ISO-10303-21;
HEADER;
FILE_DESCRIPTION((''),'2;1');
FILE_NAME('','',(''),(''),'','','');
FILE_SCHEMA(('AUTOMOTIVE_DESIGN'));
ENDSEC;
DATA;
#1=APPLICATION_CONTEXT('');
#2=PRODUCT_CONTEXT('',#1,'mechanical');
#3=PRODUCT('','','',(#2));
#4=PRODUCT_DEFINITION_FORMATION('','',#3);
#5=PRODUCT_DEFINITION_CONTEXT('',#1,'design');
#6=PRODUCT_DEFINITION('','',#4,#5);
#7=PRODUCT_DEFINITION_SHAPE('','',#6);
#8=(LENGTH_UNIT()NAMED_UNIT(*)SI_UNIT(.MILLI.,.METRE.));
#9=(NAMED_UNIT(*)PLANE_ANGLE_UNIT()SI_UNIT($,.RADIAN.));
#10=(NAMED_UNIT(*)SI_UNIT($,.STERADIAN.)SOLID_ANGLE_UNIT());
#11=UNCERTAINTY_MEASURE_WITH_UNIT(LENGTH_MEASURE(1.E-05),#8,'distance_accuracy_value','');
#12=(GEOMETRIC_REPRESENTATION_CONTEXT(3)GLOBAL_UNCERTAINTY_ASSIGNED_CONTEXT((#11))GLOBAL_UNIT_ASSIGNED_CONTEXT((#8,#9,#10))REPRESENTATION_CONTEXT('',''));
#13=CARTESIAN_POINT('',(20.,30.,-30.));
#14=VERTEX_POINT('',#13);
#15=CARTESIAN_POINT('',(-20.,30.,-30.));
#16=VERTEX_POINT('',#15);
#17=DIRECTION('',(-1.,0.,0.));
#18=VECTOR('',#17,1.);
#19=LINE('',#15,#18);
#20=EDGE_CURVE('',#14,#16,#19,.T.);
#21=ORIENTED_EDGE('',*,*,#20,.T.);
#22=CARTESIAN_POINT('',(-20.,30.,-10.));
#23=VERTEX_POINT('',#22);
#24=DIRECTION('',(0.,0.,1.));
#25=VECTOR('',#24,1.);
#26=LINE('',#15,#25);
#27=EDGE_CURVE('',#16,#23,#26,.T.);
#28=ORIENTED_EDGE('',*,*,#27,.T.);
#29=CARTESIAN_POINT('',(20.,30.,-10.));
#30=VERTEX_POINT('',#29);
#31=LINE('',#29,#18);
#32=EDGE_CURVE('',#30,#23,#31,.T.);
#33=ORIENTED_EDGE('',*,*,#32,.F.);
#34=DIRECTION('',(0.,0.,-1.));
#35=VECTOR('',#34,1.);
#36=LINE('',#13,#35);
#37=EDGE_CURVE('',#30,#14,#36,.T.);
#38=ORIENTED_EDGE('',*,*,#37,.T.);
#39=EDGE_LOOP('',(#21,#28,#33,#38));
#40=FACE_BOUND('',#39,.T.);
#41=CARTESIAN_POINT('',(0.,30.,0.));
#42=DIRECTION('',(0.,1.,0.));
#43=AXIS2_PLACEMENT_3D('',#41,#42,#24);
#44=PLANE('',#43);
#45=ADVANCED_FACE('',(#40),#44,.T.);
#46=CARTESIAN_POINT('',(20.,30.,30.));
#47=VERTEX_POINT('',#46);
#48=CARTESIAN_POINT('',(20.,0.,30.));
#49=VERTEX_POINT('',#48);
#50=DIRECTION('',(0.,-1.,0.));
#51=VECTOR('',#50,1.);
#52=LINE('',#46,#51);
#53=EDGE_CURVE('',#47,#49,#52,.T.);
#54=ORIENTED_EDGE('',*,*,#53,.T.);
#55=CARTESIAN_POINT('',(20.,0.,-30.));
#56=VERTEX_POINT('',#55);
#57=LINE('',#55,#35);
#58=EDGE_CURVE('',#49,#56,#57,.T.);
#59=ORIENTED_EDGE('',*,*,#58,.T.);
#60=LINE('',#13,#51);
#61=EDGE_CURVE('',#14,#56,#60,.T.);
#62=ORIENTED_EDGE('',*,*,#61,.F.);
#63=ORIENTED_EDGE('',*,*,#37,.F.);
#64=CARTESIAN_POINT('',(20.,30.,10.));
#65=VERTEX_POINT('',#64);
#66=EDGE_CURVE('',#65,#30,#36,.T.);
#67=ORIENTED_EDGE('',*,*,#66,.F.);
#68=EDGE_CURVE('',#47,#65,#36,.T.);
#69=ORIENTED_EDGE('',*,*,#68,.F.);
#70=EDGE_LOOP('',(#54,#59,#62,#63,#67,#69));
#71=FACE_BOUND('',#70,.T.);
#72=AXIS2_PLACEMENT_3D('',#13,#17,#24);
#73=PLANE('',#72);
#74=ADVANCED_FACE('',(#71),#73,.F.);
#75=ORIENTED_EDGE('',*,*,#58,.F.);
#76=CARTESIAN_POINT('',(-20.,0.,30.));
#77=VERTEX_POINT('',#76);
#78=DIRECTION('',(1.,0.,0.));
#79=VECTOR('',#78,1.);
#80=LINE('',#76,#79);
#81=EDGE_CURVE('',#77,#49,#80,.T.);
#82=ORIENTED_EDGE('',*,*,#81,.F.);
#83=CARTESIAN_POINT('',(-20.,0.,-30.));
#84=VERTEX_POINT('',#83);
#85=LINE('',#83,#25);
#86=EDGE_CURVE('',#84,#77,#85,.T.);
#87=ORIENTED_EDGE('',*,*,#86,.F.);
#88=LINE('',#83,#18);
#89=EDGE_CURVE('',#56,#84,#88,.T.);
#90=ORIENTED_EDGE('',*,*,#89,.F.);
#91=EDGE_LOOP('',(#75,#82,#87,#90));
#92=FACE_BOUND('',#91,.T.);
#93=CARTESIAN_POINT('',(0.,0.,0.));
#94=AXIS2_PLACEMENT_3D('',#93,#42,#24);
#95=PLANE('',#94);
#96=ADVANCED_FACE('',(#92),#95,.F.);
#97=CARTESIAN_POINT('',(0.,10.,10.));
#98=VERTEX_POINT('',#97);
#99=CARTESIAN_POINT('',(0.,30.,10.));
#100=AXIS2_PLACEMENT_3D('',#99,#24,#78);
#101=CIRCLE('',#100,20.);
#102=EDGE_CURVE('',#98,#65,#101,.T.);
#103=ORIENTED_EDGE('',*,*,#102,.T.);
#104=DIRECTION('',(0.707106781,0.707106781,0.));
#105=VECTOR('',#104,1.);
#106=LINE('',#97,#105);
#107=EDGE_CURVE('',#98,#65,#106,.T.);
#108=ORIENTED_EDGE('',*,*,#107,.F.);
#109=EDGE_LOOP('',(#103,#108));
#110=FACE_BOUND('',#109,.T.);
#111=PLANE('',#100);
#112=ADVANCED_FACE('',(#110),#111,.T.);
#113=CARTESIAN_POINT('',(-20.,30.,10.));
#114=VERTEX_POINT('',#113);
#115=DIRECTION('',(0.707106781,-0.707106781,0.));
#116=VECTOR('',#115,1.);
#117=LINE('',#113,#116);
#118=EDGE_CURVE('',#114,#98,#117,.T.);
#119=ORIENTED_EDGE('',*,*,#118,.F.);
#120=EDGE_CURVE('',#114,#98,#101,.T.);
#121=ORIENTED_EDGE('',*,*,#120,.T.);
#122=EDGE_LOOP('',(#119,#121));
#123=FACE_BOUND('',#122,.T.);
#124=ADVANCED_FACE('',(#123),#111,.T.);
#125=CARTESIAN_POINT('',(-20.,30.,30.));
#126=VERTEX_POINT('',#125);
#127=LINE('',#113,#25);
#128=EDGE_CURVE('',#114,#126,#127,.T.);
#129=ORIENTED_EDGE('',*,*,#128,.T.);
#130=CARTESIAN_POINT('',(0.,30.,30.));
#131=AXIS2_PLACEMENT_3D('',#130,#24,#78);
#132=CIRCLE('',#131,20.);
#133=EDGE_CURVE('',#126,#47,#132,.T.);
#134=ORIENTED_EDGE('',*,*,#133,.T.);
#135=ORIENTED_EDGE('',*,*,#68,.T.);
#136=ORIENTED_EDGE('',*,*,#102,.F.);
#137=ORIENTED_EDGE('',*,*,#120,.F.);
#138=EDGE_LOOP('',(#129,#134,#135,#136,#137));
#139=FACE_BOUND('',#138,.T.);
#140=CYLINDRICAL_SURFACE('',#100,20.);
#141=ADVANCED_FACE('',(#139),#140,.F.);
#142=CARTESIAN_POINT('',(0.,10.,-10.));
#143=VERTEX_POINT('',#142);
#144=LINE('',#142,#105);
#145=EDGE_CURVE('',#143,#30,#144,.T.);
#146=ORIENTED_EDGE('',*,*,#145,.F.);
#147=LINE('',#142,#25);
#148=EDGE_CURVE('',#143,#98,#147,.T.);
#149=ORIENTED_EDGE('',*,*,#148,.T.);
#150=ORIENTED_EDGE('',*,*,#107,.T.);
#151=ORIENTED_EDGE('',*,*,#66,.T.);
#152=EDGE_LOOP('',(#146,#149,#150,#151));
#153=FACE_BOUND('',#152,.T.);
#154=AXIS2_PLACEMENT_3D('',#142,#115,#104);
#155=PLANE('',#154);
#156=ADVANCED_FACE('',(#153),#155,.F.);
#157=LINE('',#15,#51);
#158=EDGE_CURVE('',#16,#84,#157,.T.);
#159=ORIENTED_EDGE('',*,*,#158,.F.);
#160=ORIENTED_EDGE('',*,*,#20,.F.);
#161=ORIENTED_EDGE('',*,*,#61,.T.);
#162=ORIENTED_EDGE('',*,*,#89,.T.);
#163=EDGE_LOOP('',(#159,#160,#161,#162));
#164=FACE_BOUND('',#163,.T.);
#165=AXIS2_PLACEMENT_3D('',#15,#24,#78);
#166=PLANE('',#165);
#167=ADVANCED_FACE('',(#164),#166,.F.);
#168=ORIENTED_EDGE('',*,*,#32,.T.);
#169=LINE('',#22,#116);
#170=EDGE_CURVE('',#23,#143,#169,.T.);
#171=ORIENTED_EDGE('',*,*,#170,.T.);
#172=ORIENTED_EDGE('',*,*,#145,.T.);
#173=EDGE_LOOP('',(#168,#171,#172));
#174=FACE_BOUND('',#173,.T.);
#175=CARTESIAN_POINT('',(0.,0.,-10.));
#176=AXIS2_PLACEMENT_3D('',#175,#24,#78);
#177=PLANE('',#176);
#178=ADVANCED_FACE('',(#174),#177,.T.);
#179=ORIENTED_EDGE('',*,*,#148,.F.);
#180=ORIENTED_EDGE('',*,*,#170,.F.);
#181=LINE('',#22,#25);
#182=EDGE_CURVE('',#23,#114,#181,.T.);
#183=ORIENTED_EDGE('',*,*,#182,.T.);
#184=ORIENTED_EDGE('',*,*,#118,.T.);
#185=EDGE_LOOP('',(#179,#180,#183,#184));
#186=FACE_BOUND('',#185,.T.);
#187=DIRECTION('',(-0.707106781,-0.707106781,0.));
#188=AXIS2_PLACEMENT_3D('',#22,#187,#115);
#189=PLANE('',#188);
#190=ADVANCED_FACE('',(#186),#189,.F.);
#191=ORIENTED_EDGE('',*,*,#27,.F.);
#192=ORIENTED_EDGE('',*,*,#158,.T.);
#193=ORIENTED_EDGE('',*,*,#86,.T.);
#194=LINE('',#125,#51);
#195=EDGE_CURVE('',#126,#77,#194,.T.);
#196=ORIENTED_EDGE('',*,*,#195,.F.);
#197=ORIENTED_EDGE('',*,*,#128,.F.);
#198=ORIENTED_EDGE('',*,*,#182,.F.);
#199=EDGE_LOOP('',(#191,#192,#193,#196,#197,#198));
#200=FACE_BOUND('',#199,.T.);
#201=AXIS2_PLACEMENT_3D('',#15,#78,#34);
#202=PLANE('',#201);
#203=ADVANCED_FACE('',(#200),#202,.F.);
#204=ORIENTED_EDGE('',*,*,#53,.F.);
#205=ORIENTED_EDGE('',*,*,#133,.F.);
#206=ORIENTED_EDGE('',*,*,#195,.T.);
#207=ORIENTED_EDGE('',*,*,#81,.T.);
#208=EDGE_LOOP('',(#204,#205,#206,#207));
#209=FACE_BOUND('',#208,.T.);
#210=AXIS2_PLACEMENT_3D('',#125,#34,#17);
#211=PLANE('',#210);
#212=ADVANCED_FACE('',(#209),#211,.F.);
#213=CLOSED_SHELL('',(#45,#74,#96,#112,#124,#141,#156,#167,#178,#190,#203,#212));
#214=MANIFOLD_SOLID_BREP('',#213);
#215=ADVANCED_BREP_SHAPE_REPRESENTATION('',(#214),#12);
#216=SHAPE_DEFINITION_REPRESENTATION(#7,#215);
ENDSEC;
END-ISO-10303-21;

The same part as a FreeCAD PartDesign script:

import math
import FreeCAD as App
import Part
import Sketcher

V = App.Vector
Q = App.Units.Quantity


def add_polygon(sketch, points):
    """Adds a closed chain of lines whose ends are joined by coincident constraints."""
    first, n = sketch.GeometryCount, len(points)
    for a, b in zip(points, points[1:] + points[:1]):
        sketch.addGeometry(Part.LineSegment(App.Vector(*a, 0), App.Vector(*b, 0)), False)
    for i in range(n):
        sketch.addConstraint(Sketcher.Constraint("Coincident", first + i, 2, first + (i + 1) % n, 1))

doc = App.newDocument("Part")
body = doc.addObject("PartDesign::Body", "Body")

sketch1 = body.newObject("Sketcher::SketchObject", "Sketch")
sketch1.AttachmentSupport = (doc.getObject("XZ_Plane"), [""])
sketch1.MapMode = "FlatFace"
add_polygon(sketch1, [(-20, -30), (-20, 30), (20, 30), (20, -30)])
sketch1.addConstraint(Sketcher.Constraint("Vertical", 0))
sketch1.addConstraint(Sketcher.Constraint("Horizontal", 1))
sketch1.addConstraint(Sketcher.Constraint("Vertical", 2))
sketch1.addConstraint(Sketcher.Constraint("Horizontal", 3))
sketch1.addConstraint(Sketcher.Constraint("Symmetric", 0, 2, 2, 2, -1, 1))
sketch1.addConstraint(Sketcher.Constraint("DistanceX", 1, 1, 1, 2, Q("40 mm")))
sketch1.addConstraint(Sketcher.Constraint("DistanceY", 0, 1, 0, 2, Q("60 mm")))
pad1 = body.newObject("PartDesign::Pad", "Pad")
pad1.Profile = sketch1
pad1.Length = 30
pad1.Reversed = True

sketch2 = body.newObject("Sketcher::SketchObject", "Sketch001")
sketch2.AttachmentSupport = (doc.getObject("XY_Plane"), [""])
sketch2.MapMode = "FlatFace"
sketch2.AttachmentOffset = App.Placement(V(0, 0, 30), App.Rotation())
sketch2.addGeometry(Part.LineSegment(V(20, 30, 0), V(-20, 30, 0)), False)
sketch2.addGeometry(Part.ArcOfCircle(Part.Circle(V(0, 30, 0), V(0, 0, 1), 20), math.radians(180), math.radians(360)), False)
sketch2.addConstraint(Sketcher.Constraint("Coincident", 0, 1, 1, 2))
sketch2.addConstraint(Sketcher.Constraint("Coincident", 1, 1, 0, 2))
sketch2.addConstraint(Sketcher.Constraint("Horizontal", 0))
sketch2.addConstraint(Sketcher.Constraint("PointOnObject", 1, 3, -2))
sketch2.addConstraint(Sketcher.Constraint("Horizontal", 1, 3, 0, 1))
sketch2.addConstraint(Sketcher.Constraint("Radius", 1, Q("20 mm")))
sketch2.addConstraint(Sketcher.Constraint("DistanceY", -1, 1, 1, 3, Q("30 mm")))
pocket1 = body.newObject("PartDesign::Pocket", "Pocket")
pocket1.Profile = sketch2
pocket1.Length = 20

sketch3 = body.newObject("Sketcher::SketchObject", "Sketch002")
sketch3.AttachmentSupport = (doc.getObject("XY_Plane"), [""])
sketch3.MapMode = "FlatFace"
sketch3.AttachmentOffset = App.Placement(V(0, 0, 10), App.Rotation())
add_polygon(sketch3, [(-20, 30), (0, 10), (20, 30)])
sketch3.addConstraint(Sketcher.Constraint("Horizontal", 2))
sketch3.addConstraint(Sketcher.Constraint("PointOnObject", 0, 2, -2))
sketch3.addConstraint(Sketcher.Constraint("Perpendicular", 0, 1))
sketch3.addConstraint(Sketcher.Constraint("Equal", 0, 1))
sketch3.addConstraint(Sketcher.Constraint("DistanceX", 2, 2, 2, 1, Q("40 mm")))
sketch3.addConstraint(Sketcher.Constraint("DistanceY", -1, 1, 0, 2, Q("10 mm")))
pocket2 = body.newObject("PartDesign::Pocket", "Pocket001")
pocket2.Profile = sketch3
pocket2.Length = 20

doc.recompute()
